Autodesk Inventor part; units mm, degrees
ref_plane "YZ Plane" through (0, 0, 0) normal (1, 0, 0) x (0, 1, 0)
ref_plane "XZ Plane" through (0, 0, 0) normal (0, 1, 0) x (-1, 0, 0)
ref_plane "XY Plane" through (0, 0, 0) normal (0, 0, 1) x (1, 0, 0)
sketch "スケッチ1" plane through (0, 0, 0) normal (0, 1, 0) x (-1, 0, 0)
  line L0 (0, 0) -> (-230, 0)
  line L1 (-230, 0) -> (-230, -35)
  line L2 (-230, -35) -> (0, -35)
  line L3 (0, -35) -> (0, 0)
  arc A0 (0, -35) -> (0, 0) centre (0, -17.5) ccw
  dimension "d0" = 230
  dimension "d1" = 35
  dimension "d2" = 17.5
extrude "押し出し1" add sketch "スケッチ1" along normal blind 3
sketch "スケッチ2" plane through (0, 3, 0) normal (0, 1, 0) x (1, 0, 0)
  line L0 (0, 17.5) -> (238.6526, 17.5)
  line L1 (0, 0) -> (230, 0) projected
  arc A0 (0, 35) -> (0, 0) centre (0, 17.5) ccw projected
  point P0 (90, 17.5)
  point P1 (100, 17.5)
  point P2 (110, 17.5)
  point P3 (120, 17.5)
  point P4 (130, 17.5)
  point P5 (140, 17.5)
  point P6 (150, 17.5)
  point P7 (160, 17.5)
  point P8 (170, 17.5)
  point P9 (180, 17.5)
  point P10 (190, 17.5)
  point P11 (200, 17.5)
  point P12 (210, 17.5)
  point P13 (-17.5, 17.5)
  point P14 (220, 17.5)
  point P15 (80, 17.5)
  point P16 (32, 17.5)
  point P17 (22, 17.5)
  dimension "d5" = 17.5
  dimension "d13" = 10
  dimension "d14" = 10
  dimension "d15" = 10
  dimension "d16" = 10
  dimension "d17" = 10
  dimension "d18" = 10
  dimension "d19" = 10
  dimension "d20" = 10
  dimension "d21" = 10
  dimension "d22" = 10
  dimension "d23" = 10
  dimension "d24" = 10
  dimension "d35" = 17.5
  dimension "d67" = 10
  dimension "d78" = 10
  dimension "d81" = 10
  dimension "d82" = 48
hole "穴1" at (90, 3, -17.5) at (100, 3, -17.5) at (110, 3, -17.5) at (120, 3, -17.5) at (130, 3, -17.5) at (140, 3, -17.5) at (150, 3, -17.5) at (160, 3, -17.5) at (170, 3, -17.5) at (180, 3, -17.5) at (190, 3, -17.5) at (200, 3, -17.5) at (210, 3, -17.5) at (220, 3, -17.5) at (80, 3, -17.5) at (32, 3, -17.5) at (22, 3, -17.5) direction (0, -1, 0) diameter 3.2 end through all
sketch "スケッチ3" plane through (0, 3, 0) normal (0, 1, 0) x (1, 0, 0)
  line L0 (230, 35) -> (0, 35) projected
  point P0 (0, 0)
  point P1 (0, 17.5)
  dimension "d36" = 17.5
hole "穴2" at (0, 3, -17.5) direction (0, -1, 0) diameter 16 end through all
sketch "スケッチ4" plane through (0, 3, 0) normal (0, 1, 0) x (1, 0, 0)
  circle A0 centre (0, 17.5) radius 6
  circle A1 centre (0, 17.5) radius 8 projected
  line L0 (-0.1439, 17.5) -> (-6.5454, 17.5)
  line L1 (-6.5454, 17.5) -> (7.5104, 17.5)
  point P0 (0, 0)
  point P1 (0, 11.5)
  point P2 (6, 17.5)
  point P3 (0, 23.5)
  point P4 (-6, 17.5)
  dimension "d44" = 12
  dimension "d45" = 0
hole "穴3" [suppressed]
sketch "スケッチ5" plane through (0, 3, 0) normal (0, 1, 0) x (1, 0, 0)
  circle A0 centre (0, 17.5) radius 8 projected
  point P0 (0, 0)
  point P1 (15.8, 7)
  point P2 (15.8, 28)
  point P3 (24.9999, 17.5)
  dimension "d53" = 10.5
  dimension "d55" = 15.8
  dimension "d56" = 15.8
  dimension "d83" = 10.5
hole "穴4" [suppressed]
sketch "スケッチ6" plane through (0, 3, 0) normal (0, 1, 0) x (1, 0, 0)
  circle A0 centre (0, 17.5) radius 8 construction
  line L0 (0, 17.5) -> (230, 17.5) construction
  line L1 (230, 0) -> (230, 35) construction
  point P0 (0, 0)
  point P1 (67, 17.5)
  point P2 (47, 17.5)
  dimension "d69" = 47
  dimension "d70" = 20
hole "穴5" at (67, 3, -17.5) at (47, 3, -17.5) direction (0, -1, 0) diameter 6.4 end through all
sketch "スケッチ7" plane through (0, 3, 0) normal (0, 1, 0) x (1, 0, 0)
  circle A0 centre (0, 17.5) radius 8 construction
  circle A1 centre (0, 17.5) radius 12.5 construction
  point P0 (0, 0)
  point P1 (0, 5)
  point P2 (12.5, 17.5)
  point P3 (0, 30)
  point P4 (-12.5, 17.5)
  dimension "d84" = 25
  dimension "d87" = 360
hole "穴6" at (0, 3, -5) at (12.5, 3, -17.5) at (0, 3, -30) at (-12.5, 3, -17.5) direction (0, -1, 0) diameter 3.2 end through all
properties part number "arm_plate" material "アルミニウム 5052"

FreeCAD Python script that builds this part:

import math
import FreeCAD as App
import Part
import Sketcher
Q = App.Units.Quantity

doc = App.newDocument("Part")
params = doc.addObject("Spreadsheet::Sheet", "Params")
for row, (alias, value) in enumerate([
    ("sketch1_radius", "17.5 mm"),
    ("sketch1_width", "230 mm"),
    ("pad1_length", "3 mm"),
    ("sketch2_diameter", "3.2 mm"),
    ("hole_diameter", "3.2 mm"),
    ("sketch3_diameter", "16 mm"),
    ("hole2_diameter", "16 mm"),
    ("sketch4_diameter", "6.4 mm"),
    ("hole3_diameter", "6.4 mm"),
    ("sketch5_diameter", "3.2 mm"),
    ("hole4_diameter", "3.2 mm"),
], start=1):
    params.set(f"A{row}", alias)
    params.set(f"B{row}", "=" + value)
    params.setAlias(f"B{row}", alias)

body = doc.addObject("PartDesign::Body", "Body")

# Sketch on XZ plane
sketch1 = body.newObject("Sketcher::SketchObject", "Sketch")
sketch1.AttachmentSupport = (doc.getObject("XZ_Plane"), [""])
sketch1.MapMode = "FlatFace"
sketch1.addGeometry([
    Part.LineSegment(App.Vector(230, -35, 0), App.Vector(0, -35, 0)),
    Part.ArcOfCircle(Part.Circle(App.Vector(0, -17.5, 0), App.Vector(0, 0, 1), 17.5), math.radians(90), math.radians(270)),
    Part.LineSegment(App.Vector(0, 0, 0), App.Vector(230, 0, 0)),
    Part.LineSegment(App.Vector(230, 0, 0), App.Vector(230, -35, 0)),
], False)
sketch1.addConstraint([
    Sketcher.Constraint("Tangent", 0, 2, 1, 2),
    Sketcher.Constraint("Tangent", 1, 1, 2, 1),
    Sketcher.Constraint("Coincident", 2, 2, 3, 1),
    Sketcher.Constraint("Coincident", 3, 2, 0, 1),
    Sketcher.Constraint("Horizontal", 0),
    Sketcher.Constraint("Horizontal", 2),
    Sketcher.Constraint("Vertical", 3),
    Sketcher.Constraint("Coincident", 1, 1, -1, 1),
    Sketcher.Constraint("Radius", 1, Q("17.5 mm")),
    Sketcher.Constraint("DistanceX", 0, 2, 0, 1, Q("230 mm")),
])
sketch1.setExpression("Constraints[8]", "Params.sketch1_radius")
sketch1.setExpression("Constraints[9]", "Params.sketch1_width")
pad1 = body.newObject("PartDesign::Pad", "Pad")
pad1.Profile = sketch1
pad1.setExpression("Length", "Params.pad1_length")
pad1.Reversed = True

# Sketch on XZ plane
sketch2 = body.newObject("Sketcher::SketchObject", "Sketch001")
sketch2.AttachmentSupport = (doc.getObject("XZ_Plane"), [""])
sketch2.MapMode = "FlatFace"
sketch2.AttachmentOffset = App.Placement(App.Vector(0, 0, -3), App.Rotation())
sketch2.addGeometry([
    Part.Circle(App.Vector(90, -17.5, 0), App.Vector(0, 0, 1), 1.6),  # 0
    Part.Circle(App.Vector(100, -17.5, 0), App.Vector(0, 0, 1), 1.6),  # 1
    Part.Circle(App.Vector(110, -17.5, 0), App.Vector(0, 0, 1), 1.6),  # 2
    Part.Circle(App.Vector(120, -17.5, 0), App.Vector(0, 0, 1), 1.6),  # 3
    Part.Circle(App.Vector(130, -17.5, 0), App.Vector(0, 0, 1), 1.6),  # 4
    Part.Circle(App.Vector(140, -17.5, 0), App.Vector(0, 0, 1), 1.6),  # 5
    Part.Circle(App.Vector(150, -17.5, 0), App.Vector(0, 0, 1), 1.6),  # 6
    Part.Circle(App.Vector(160, -17.5, 0), App.Vector(0, 0, 1), 1.6),  # 7
    Part.Circle(App.Vector(170, -17.5, 0), App.Vector(0, 0, 1), 1.6),  # 8
    Part.Circle(App.Vector(180, -17.5, 0), App.Vector(0, 0, 1), 1.6),  # 9
    Part.Circle(App.Vector(190, -17.5, 0), App.Vector(0, 0, 1), 1.6),  # 10
    Part.Circle(App.Vector(200, -17.5, 0), App.Vector(0, 0, 1), 1.6),  # 11
    Part.Circle(App.Vector(210, -17.5, 0), App.Vector(0, 0, 1), 1.6),  # 12
    Part.Circle(App.Vector(220, -17.5, 0), App.Vector(0, 0, 1), 1.6),  # 13
    Part.Circle(App.Vector(80, -17.5, 0), App.Vector(0, 0, 1), 1.6),  # 14
    Part.Circle(App.Vector(32, -17.5, 0), App.Vector(0, 0, 1), 1.6),  # 15
    Part.Circle(App.Vector(22, -17.5, 0), App.Vector(0, 0, 1), 1.6),  # 16
], False)
sketch2.addConstraint([
    Sketcher.Constraint("Equal", 0, 1),
    Sketcher.Constraint("Equal", 1, 2),
    Sketcher.Constraint("Equal", 2, 3),
    Sketcher.Constraint("Equal", 3, 4),
    Sketcher.Constraint("Equal", 4, 5),
    Sketcher.Constraint("Equal", 5, 6),
    Sketcher.Constraint("Equal", 6, 7),
    Sketcher.Constraint("Equal", 7, 8),
    Sketcher.Constraint("Equal", 8, 9),
    Sketcher.Constraint("Equal", 9, 10),
    Sketcher.Constraint("Equal", 10, 11),
    Sketcher.Constraint("Equal", 11, 12),
    Sketcher.Constraint("Equal", 12, 13),
    Sketcher.Constraint("Equal", 13, 14),
    Sketcher.Constraint("Equal", 14, 15),
    Sketcher.Constraint("Equal", 15, 16),
    Sketcher.Constraint("Horizontal", 0, 3, 1, 3),
    Sketcher.Constraint("Horizontal", 1, 3, 2, 3),
    Sketcher.Constraint("Horizontal", 2, 3, 3, 3),
    Sketcher.Constraint("Horizontal", 3, 3, 4, 3),
    Sketcher.Constraint("Horizontal", 4, 3, 5, 3),
    Sketcher.Constraint("Horizontal", 5, 3, 6, 3),
    Sketcher.Constraint("Horizontal", 6, 3, 7, 3),
    Sketcher.Constraint("Horizontal", 7, 3, 8, 3),
    Sketcher.Constraint("Horizontal", 8, 3, 9, 3),
    Sketcher.Constraint("Horizontal", 9, 3, 10, 3),
    Sketcher.Constraint("Horizontal", 10, 3, 11, 3),
    Sketcher.Constraint("Horizontal", 11, 3, 12, 3),
    Sketcher.Constraint("Horizontal", 12, 3, 13, 3),
    Sketcher.Constraint("Horizontal", 13, 3, 14, 3),
    Sketcher.Constraint("Horizontal", 14, 3, 15, 3),
    Sketcher.Constraint("Horizontal", 15, 3, 16, 3),
    Sketcher.Constraint("Diameter", 0, Q("3.2 mm")),
    Sketcher.Constraint("DistanceX", -1, 1, 0, 3, Q("90 mm")),
    Sketcher.Constraint("DistanceX", -1, 1, 1, 3, Q("100 mm")),
    Sketcher.Constraint("DistanceX", -1, 1, 2, 3, Q("110 mm")),
    Sketcher.Constraint("DistanceX", -1, 1, 3, 3, Q("120 mm")),
    Sketcher.Constraint("DistanceX", -1, 1, 4, 3, Q("130 mm")),
    Sketcher.Constraint("DistanceX", -1, 1, 5, 3, Q("140 mm")),
    Sketcher.Constraint("DistanceX", -1, 1, 6, 3, Q("150 mm")),
    Sketcher.Constraint("DistanceX", -1, 1, 7, 3, Q("160 mm")),
    Sketcher.Constraint("DistanceX", -1, 1, 8, 3, Q("170 mm")),
    Sketcher.Constraint("DistanceX", -1, 1, 9, 3, Q("180 mm")),
    Sketcher.Constraint("DistanceX", -1, 1, 10, 3, Q("190 mm")),
    Sketcher.Constraint("DistanceX", -1, 1, 11, 3, Q("200 mm")),
    Sketcher.Constraint("DistanceX", -1, 1, 12, 3, Q("210 mm")),
    Sketcher.Constraint("DistanceX", -1, 1, 13, 3, Q("220 mm")),
    Sketcher.Constraint("DistanceX", -1, 1, 14, 3, Q("80 mm")),
    Sketcher.Constraint("DistanceX", -1, 1, 15, 3, Q("32 mm")),
    Sketcher.Constraint("DistanceX", -1, 1, 16, 3, Q("22 mm")),
    Sketcher.Constraint("DistanceY", 0, 3, -1, 1, Q("17.5 mm")),
])
sketch2.setExpression("Constraints[32]", "Params.sketch2_diameter")
doc.recompute()
hole = body.newObject("PartDesign::Hole", "Hole")
hole.Profile = sketch2
hole.ThreadType = "None"
hole.setExpression("Diameter", "Params.hole_diameter")
hole.DepthType = "ThroughAll"
hole.Reversed = True

# Sketch on XZ plane
sketch3 = body.newObject("Sketcher::SketchObject", "Sketch002")
sketch3.AttachmentSupport = (doc.getObject("XZ_Plane"), [""])
sketch3.MapMode = "FlatFace"
sketch3.AttachmentOffset = App.Placement(App.Vector(0, 0, -3), App.Rotation())
sketch3.addGeometry(Part.Circle(App.Vector(0, -17.5, 0), App.Vector(0, 0, 1), 8), False)
sketch3.addConstraint([
    Sketcher.Constraint("PointOnObject", 0, 3, -2),
    Sketcher.Constraint("Diameter", 0, Q("16 mm")),
    Sketcher.Constraint("DistanceY", 0, 3, -1, 1, Q("17.5 mm")),
])
sketch3.setExpression("Constraints[1]", "Params.sketch3_diameter")
doc.recompute()
hole2 = body.newObject("PartDesign::Hole", "Hole001")
hole2.Profile = sketch3
hole2.ThreadType = "None"
hole2.setExpression("Diameter", "Params.hole2_diameter")
hole2.DepthType = "ThroughAll"
hole2.Reversed = True

# Sketch on XZ plane
sketch4 = body.newObject("Sketcher::SketchObject", "Sketch003")
sketch4.AttachmentSupport = (doc.getObject("XZ_Plane"), [""])
sketch4.MapMode = "FlatFace"
sketch4.AttachmentOffset = App.Placement(App.Vector(0, 0, -3), App.Rotation())
sketch4.addGeometry([
    Part.Circle(App.Vector(67, -17.5, 0), App.Vector(0, 0, 1), 3.2),
    Part.Circle(App.Vector(47, -17.5, 0), App.Vector(0, 0, 1), 3.2),
], False)
sketch4.addConstraint([
    Sketcher.Constraint("Equal", 0, 1),
    Sketcher.Constraint("Horizontal", 0, 3, 1, 3),
    Sketcher.Constraint("Diameter", 0, Q("6.4 mm")),
    Sketcher.Constraint("DistanceX", -1, 1, 0, 3, Q("67 mm")),
    Sketcher.Constraint("DistanceX", -1, 1, 1, 3, Q("47 mm")),
    Sketcher.Constraint("DistanceY", 0, 3, -1, 1, Q("17.5 mm")),
])
sketch4.setExpression("Constraints[2]", "Params.sketch4_diameter")
doc.recompute()
hole3 = body.newObject("PartDesign::Hole", "Hole002")
hole3.Profile = sketch4
hole3.ThreadType = "None"
hole3.setExpression("Diameter", "Params.hole3_diameter")
hole3.DepthType = "ThroughAll"
hole3.Reversed = True

# Sketch on XZ plane
sketch5 = body.newObject("Sketcher::SketchObject", "Sketch004")
sketch5.AttachmentSupport = (doc.getObject("XZ_Plane"), [""])
sketch5.MapMode = "FlatFace"
sketch5.AttachmentOffset = App.Placement(App.Vector(0, 0, -3), App.Rotation())
sketch5.addGeometry([
    Part.Circle(App.Vector(0, -5, 0), App.Vector(0, 0, 1), 1.6),
    Part.Circle(App.Vector(12.5, -17.5, 0), App.Vector(0, 0, 1), 1.6),
    Part.Circle(App.Vector(0, -30, 0), App.Vector(0, 0, 1), 1.6),
    Part.Circle(App.Vector(-12.5, -17.5, 0), App.Vector(0, 0, 1), 1.6),
], False)
sketch5.addConstraint([
    Sketcher.Constraint("Equal", 0, 1),
    Sketcher.Constraint("Equal", 1, 2),
    Sketcher.Constraint("Equal", 2, 3),
    Sketcher.Constraint("Symmetric", 1, 3, 3, 3, -2),
    Sketcher.Constraint("PointOnObject", 0, 3, -2),
    Sketcher.Constraint("PointOnObject", 2, 3, -2),
    Sketcher.Constraint("Diameter", 0, Q("3.2 mm")),
    Sketcher.Constraint("DistanceY", 0, 3, -1, 1, Q("5 mm")),
    Sketcher.Constraint("DistanceY", 2, 3, -1, 1, Q("30 mm")),
    Sketcher.Constraint("DistanceX", 3, 3, 1, 3, Q("25 mm")),
    Sketcher.Constraint("DistanceY", 1, 3, -1, 1, Q("17.5 mm")),
])
sketch5.setExpression("Constraints[6]", "Params.sketch5_diameter")
doc.recompute()
hole4 = body.newObject("PartDesign::Hole", "Hole003")
hole4.Profile = sketch5
hole4.ThreadType = "None"
hole4.setExpression("Diameter", "Params.hole4_diameter")
hole4.DepthType = "ThroughAll"
hole4.Reversed = True

doc.recompute()
